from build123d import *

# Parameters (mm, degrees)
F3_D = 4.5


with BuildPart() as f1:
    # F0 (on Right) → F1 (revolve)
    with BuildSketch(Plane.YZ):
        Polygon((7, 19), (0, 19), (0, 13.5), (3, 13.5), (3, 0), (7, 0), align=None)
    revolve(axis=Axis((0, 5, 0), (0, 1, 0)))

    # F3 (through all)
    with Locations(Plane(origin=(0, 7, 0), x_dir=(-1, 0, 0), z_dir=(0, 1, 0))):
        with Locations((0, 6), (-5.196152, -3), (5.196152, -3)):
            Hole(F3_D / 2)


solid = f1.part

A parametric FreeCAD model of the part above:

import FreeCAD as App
import Part
import Sketcher
Q = App.Units.Quantity


def add_polygon(sketch, points):
    """Adds a closed chain of lines whose ends are joined by coincident constraints."""
    first, n = sketch.GeometryCount, len(points)
    for a, b in zip(points, points[1:] + points[:1]):
        sketch.addGeometry(Part.LineSegment(App.Vector(*a, 0), App.Vector(*b, 0)), False)
    for i in range(n):
        sketch.addConstraint(Sketcher.Constraint("Coincident", first + i, 2, first + (i + 1) % n, 1))

doc = App.newDocument("Part")
body = doc.addObject("PartDesign::Body", "Body")

# Sketch on YZ plane
sketch1 = body.newObject("Sketcher::SketchObject", "Sketch")
sketch1.AttachmentSupport = (doc.getObject("YZ_Plane"), [""])
sketch1.MapMode = "FlatFace"
add_polygon(sketch1, [(7, 19), (0, 19), (0, 13.5), (3, 13.5), (3, 0), (7, 0)])  # lines 0-5
sketch1.addConstraint([
    Sketcher.Constraint("Horizontal", 0),
    Sketcher.Constraint("Vertical", 1),
    Sketcher.Constraint("Horizontal", 2),
    Sketcher.Constraint("Vertical", 3),
    Sketcher.Constraint("Horizontal", 4),
    Sketcher.Constraint("Vertical", 5),
    Sketcher.Constraint("PointOnObject", 0, 2, -2),
    Sketcher.Constraint("PointOnObject", 3, 2, -1),
    Sketcher.Constraint("DistanceX", 0, 2, 0, 1, Q("7 mm")),
    Sketcher.Constraint("DistanceX", 2, 1, 2, 2, Q("3 mm")),
    Sketcher.Constraint("DistanceY", 5, 1, 5, 2, Q("19 mm")),
    Sketcher.Constraint("DistanceY", 1, 2, 1, 1, Q("5.5 mm")),
])
revolution = body.newObject("PartDesign::Revolution", "Revolution")
revolution.Profile = sketch1
revolution.ReferenceAxis = (sketch1, ["H_Axis"])
revolution.Angle = 360

# Sketch on XZ plane
sketch2 = body.newObject("Sketcher::SketchObject", "Sketch001")
sketch2.AttachmentSupport = (doc.getObject("XZ_Plane"), [""])
sketch2.MapMode = "FlatFace"
sketch2.AttachmentOffset = App.Placement(App.Vector(0, 0, -7), App.Rotation())
sketch2.addGeometry([
    Part.Circle(App.Vector(0, 6, 0), App.Vector(0, 0, 1), 2.2),
    Part.Circle(App.Vector(5.2, -3, 0), App.Vector(0, 0, 1), 2.2),
    Part.Circle(App.Vector(-5.2, -3, 0), App.Vector(0, 0, 1), 2.2),
], False)
sketch2.addConstraint([
    Sketcher.Constraint("Equal", 0, 1),
    Sketcher.Constraint("Equal", 1, 2),
    Sketcher.Constraint("Symmetric", 1, 3, 2, 3, -2),
    Sketcher.Constraint("PointOnObject", 0, 3, -2),
    Sketcher.Constraint("Diameter", 0, Q("4.5 mm")),
    Sketcher.Constraint("DistanceY", -1, 1, 0, 3, Q("6 mm")),
    Sketcher.Constraint("DistanceY", 1, 3, -1, 1, Q("3 mm")),
    Sketcher.Constraint("DistanceX", -1, 1, 1, 3, Q("5.196152 mm")),
])
doc.recompute()
hole = body.newObject("PartDesign::Hole", "Hole")
hole.Profile = sketch2
hole.ThreadType = "None"
hole.Diameter = 4.5
hole.DepthType = "ThroughAll"
hole.Reversed = True

doc.recompute()
